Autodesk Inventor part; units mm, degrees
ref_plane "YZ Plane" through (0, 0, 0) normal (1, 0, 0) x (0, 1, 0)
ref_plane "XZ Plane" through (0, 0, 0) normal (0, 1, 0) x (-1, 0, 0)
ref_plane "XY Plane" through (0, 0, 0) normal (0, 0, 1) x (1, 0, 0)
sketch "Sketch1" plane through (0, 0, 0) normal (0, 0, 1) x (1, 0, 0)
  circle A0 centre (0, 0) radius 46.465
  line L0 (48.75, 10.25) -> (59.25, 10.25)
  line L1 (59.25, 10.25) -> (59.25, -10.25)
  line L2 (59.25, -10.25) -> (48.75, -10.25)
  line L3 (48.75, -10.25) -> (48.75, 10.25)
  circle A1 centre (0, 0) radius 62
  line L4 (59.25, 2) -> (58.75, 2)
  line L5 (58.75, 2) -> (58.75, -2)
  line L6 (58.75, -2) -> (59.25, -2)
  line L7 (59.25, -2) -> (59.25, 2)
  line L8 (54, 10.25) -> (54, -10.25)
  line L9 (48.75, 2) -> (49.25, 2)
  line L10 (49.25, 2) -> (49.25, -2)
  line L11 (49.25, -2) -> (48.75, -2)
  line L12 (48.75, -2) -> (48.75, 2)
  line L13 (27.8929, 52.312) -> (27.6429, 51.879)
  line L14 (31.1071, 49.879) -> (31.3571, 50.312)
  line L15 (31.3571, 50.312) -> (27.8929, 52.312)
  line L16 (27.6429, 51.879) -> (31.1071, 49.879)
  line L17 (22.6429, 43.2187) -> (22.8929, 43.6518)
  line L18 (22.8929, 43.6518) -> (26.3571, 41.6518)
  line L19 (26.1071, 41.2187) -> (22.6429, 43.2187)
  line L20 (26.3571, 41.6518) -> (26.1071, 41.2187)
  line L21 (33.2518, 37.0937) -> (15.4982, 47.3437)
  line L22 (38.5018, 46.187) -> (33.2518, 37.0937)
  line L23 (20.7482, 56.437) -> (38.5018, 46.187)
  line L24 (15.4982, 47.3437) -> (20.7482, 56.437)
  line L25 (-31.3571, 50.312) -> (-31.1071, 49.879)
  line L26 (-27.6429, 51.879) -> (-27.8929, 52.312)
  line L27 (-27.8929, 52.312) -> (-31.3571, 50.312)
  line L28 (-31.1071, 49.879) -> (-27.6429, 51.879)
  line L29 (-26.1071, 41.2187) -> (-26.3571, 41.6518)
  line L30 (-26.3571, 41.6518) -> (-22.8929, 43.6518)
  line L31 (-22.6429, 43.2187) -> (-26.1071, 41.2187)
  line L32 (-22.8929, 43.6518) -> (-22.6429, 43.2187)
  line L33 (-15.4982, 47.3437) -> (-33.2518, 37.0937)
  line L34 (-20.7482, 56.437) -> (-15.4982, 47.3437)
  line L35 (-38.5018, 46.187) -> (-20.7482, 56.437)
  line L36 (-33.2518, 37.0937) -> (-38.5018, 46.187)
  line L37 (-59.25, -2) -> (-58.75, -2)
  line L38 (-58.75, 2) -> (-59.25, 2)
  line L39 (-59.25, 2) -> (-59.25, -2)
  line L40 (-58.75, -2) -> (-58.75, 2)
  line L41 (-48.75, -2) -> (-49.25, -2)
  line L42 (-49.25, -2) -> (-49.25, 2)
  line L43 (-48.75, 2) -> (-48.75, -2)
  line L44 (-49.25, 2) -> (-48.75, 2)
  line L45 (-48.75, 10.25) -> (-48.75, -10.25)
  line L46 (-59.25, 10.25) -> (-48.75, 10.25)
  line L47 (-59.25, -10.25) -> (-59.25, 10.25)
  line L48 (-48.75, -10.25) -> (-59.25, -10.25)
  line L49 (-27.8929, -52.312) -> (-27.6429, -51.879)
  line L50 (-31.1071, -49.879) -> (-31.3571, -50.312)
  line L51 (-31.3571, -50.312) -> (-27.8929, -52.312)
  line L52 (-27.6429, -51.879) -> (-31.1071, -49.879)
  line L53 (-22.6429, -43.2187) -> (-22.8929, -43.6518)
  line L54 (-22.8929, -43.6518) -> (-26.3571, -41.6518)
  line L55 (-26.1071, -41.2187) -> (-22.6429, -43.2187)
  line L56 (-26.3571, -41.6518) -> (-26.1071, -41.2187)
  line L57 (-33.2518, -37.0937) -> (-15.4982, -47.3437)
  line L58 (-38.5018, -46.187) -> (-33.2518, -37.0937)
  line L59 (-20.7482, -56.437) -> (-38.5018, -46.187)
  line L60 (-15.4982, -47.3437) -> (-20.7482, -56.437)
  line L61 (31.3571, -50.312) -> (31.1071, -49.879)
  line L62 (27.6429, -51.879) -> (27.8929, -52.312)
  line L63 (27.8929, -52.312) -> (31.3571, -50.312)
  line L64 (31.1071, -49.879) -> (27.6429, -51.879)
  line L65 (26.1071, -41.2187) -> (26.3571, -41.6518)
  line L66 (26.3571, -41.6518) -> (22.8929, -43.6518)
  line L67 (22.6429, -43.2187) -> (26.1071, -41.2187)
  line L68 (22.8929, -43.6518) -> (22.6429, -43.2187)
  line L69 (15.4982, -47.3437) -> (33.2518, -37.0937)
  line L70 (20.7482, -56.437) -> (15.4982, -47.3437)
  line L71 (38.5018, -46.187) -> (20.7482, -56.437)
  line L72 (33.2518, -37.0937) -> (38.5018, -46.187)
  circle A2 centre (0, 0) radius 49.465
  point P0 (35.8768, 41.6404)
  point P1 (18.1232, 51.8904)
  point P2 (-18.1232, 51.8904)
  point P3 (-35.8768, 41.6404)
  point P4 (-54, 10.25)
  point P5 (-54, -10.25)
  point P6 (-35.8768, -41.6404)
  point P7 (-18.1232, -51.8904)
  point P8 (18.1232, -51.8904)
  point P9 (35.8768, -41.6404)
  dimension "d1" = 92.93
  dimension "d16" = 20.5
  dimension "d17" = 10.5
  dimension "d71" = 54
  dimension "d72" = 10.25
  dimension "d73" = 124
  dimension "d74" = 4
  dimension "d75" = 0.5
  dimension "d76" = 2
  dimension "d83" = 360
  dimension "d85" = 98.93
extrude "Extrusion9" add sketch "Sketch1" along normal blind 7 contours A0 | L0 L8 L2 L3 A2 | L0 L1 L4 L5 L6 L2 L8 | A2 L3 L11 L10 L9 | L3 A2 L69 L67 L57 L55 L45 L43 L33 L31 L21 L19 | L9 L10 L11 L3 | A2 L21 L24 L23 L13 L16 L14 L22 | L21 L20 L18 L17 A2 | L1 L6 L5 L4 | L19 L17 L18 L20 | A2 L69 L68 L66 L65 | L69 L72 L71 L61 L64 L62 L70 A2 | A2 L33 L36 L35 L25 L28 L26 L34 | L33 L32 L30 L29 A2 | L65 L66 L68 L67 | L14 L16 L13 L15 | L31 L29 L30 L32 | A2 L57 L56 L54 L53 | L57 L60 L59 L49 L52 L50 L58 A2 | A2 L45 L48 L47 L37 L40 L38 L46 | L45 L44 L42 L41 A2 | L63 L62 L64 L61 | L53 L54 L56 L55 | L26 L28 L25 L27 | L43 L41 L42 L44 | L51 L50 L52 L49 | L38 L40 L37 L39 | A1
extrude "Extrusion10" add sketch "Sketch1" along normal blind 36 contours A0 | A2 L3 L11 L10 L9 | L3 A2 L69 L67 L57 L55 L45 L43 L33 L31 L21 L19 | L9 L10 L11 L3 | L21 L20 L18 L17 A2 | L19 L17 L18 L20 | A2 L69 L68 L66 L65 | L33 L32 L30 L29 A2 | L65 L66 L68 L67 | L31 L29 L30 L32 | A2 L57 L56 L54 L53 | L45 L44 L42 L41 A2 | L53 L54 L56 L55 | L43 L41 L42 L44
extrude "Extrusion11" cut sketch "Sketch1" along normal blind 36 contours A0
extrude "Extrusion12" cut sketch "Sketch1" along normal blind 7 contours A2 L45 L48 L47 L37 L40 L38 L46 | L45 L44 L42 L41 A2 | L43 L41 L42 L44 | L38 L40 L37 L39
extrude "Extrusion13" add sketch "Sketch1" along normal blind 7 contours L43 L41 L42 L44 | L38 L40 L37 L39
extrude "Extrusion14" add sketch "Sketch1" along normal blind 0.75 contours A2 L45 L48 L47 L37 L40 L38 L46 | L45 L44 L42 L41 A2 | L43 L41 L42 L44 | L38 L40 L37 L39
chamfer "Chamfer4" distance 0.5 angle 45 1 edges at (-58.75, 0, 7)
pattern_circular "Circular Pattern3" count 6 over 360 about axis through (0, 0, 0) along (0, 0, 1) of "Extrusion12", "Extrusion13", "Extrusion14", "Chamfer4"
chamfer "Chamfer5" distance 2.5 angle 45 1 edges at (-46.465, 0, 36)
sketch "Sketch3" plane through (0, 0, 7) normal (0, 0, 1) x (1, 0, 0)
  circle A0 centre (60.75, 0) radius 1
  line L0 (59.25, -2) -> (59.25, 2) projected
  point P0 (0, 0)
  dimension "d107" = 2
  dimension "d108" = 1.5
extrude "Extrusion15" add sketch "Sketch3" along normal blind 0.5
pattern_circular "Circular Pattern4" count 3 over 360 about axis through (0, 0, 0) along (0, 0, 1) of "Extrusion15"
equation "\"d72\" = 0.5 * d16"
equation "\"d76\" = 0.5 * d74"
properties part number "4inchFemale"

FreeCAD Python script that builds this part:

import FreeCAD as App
import Part
import Sketcher

V = App.Vector


def edges_at(feature, points):
    """Names of the edges that pass closest to the given points."""
    edges = feature.Shape.Edges
    near = lambda p: min(range(len(edges)), key=lambda i: edges[i].distToShape(Part.Vertex(*p))[0])
    return sorted({f"Edge{near(p) + 1}" for p in points})

doc = App.newDocument("Part")
body = doc.addObject("PartDesign::Body", "Body")

# Sketch on XY plane
sketch1 = body.newObject("Sketcher::SketchObject", "Sketch")
sketch1.AttachmentSupport = (doc.getObject("XY_Plane"), [""])
sketch1.MapMode = "FlatFace"
sketch1.addGeometry(Part.Circle(V(0, 0, 0), V(0, 0, 1), 62), False)
sketch1.addConstraint(Sketcher.Constraint("Coincident", 0, 3, -1, 1))
sketch1.addConstraint(Sketcher.Constraint("Diameter", 0, 124.0))
pad1 = body.newObject("PartDesign::Pad", "Pad")
pad1.Profile = sketch1
pad1.Length = 7

# Sketch on XY plane
sketch2 = body.newObject("Sketcher::SketchObject", "Sketch001")
sketch2.AttachmentSupport = (doc.getObject("XY_Plane"), [""])
sketch2.MapMode = "FlatFace"
sketch2.addGeometry(Part.Circle(V(0, 0, 0), V(0, 0, 1), 49), False)
sketch2.addConstraint(Sketcher.Constraint("Coincident", 0, 3, -1, 1))
sketch2.addConstraint(Sketcher.Constraint("Diameter", 0, 98.93))
pad2 = body.newObject("PartDesign::Pad", "Pad001")
pad2.Profile = sketch2
pad2.Length = 36

# Sketch on XY plane
sketch3 = body.newObject("Sketcher::SketchObject", "Sketch002")
sketch3.AttachmentSupport = (doc.getObject("XY_Plane"), [""])
sketch3.MapMode = "FlatFace"
sketch3.addGeometry(Part.Circle(V(0, 0, 0), V(0, 0, 1), 46), False)
sketch3.addConstraint(Sketcher.Constraint("Coincident", 0, 3, -1, 1))
sketch3.addConstraint(Sketcher.Constraint("Diameter", 0, 92.93))
pocket1 = body.newObject("PartDesign::Pocket", "Pocket")
pocket1.Profile = sketch3
pocket1.Length = 36
pocket1.Reversed = True

# Sketch on XY plane
sketch4 = body.newObject("Sketcher::SketchObject", "Sketch003")
sketch4.AttachmentSupport = (doc.getObject("XY_Plane"), [""])
sketch4.MapMode = "FlatFace"
sketch4.addGeometry(Part.LineSegment(V(-49, -10, 0), V(-49, 10, 0)), False)
sketch4.addGeometry(Part.LineSegment(V(-49, 10, 0), V(-59, 10, 0)), False)
sketch4.addGeometry(Part.LineSegment(V(-59, 10, 0), V(-59, -10, 0)), False)
sketch4.addGeometry(Part.LineSegment(V(-59, -10, 0), V(-49, -10, 0)), False)
sketch4.addConstraint(Sketcher.Constraint("Coincident", 0, 2, 1, 1))
sketch4.addConstraint(Sketcher.Constraint("Coincident", 1, 2, 2, 1))
sketch4.addConstraint(Sketcher.Constraint("Coincident", 2, 2, 3, 1))
sketch4.addConstraint(Sketcher.Constraint("Coincident", 3, 2, 0, 1))
sketch4.addConstraint(Sketcher.Constraint("Vertical", 0))
sketch4.addConstraint(Sketcher.Constraint("Horizontal", 1))
sketch4.addConstraint(Sketcher.Constraint("Vertical", 2))
sketch4.addConstraint(Sketcher.Constraint("Horizontal", 3))
sketch4.addConstraint(Sketcher.Constraint("DistanceX", 1, 2, 1, 1, 10.5))
sketch4.addConstraint(Sketcher.Constraint("DistanceY", 0, 1, 0, 2, 20.5))
sketch4.addConstraint(Sketcher.Constraint("DistanceY", -1, 1, 0, 2, 10.25))
sketch4.addConstraint(Sketcher.Constraint("DistanceX", 0, 2, -1, 1, 48.75))
pocket2 = body.newObject("PartDesign::Pocket", "Pocket001")
pocket2.Profile = sketch4
pocket2.Length = 7
pocket2.Reversed = True

# Sketch on XY plane
sketch5 = body.newObject("Sketcher::SketchObject", "Sketch004")
sketch5.AttachmentSupport = (doc.getObject("XY_Plane"), [""])
sketch5.MapMode = "FlatFace"
sketch5.addGeometry(Part.LineSegment(V(-48.8, -2, 0), V(-48.8, 2, 0)), False)
sketch5.addGeometry(Part.LineSegment(V(-48.8, 2, 0), V(-49.2, 2, 0)), False)
sketch5.addGeometry(Part.LineSegment(V(-49.2, 2, 0), V(-49.2, -2, 0)), False)
sketch5.addGeometry(Part.LineSegment(V(-49.2, -2, 0), V(-48.8, -2, 0)), False)
sketch5.addGeometry(Part.LineSegment(V(-58.8, 2, 0), V(-59.2, 2, 0)), False)
sketch5.addGeometry(Part.LineSegment(V(-59.2, 2, 0), V(-59.2, -2, 0)), False)
sketch5.addGeometry(Part.LineSegment(V(-59.2, -2, 0), V(-58.8, -2, 0)), False)
sketch5.addGeometry(Part.LineSegment(V(-58.8, -2, 0), V(-58.8, 2, 0)), False)
sketch5.addConstraint(Sketcher.Constraint("Coincident", 0, 2, 1, 1))
sketch5.addConstraint(Sketcher.Constraint("Coincident", 1, 2, 2, 1))
sketch5.addConstraint(Sketcher.Constraint("Coincident", 2, 2, 3, 1))
sketch5.addConstraint(Sketcher.Constraint("Coincident", 3, 2, 0, 1))
sketch5.addConstraint(Sketcher.Constraint("Coincident", 4, 2, 5, 1))
sketch5.addConstraint(Sketcher.Constraint("Coincident", 5, 2, 6, 1))
sketch5.addConstraint(Sketcher.Constraint("Coincident", 6, 2, 7, 1))
sketch5.addConstraint(Sketcher.Constraint("Coincident", 7, 2, 4, 1))
sketch5.addConstraint(Sketcher.Constraint("Vertical", 0))
sketch5.addConstraint(Sketcher.Constraint("Horizontal", 1))
sketch5.addConstraint(Sketcher.Constraint("Vertical", 2))
sketch5.addConstraint(Sketcher.Constraint("Horizontal", 3))
sketch5.addConstraint(Sketcher.Constraint("Horizontal", 4))
sketch5.addConstraint(Sketcher.Constraint("Vertical", 5))
sketch5.addConstraint(Sketcher.Constraint("Horizontal", 6))
sketch5.addConstraint(Sketcher.Constraint("Vertical", 7))
sketch5.addConstraint(Sketcher.Constraint("Horizontal", 1, 2, 4, 2))
sketch5.addConstraint(Sketcher.Constraint("Horizontal", 3, 2, 5, 2))
sketch5.addConstraint(Sketcher.Constraint("Equal", 3, 4))
sketch5.addConstraint(Sketcher.Constraint("DistanceY", 0, 1, 0, 2, 4.0))
sketch5.addConstraint(Sketcher.Constraint("DistanceX", 1, 2, 1, 1, 0.5))
sketch5.addConstraint(Sketcher.Constraint("DistanceY", -1, 1, 0, 2, 2.0))
sketch5.addConstraint(Sketcher.Constraint("DistanceX", 4, 2, 0, 2, 10.5))
sketch5.addConstraint(Sketcher.Constraint("DistanceX", 0, 2, -1, 1, 48.75))
pad3 = body.newObject("PartDesign::Pad", "Pad002")
pad3.Profile = sketch5
pad3.Length = 7

# Sketch on XY plane
sketch6 = body.newObject("Sketcher::SketchObject", "Sketch005")
sketch6.AttachmentSupport = (doc.getObject("XY_Plane"), [""])
sketch6.MapMode = "FlatFace"
sketch6.addGeometry(Part.LineSegment(V(-49, -10, 0), V(-49, 10, 0)), False)
sketch6.addGeometry(Part.LineSegment(V(-49, 10, 0), V(-59, 10, 0)), False)
sketch6.addGeometry(Part.LineSegment(V(-59, 10, 0), V(-59, -10, 0)), False)
sketch6.addGeometry(Part.LineSegment(V(-59, -10, 0), V(-49, -10, 0)), False)
sketch6.addConstraint(Sketcher.Constraint("Coincident", 0, 2, 1, 1))
sketch6.addConstraint(Sketcher.Constraint("Coincident", 1, 2, 2, 1))
sketch6.addConstraint(Sketcher.Constraint("Coincident", 2, 2, 3, 1))
sketch6.addConstraint(Sketcher.Constraint("Coincident", 3, 2, 0, 1))
sketch6.addConstraint(Sketcher.Constraint("Vertical", 0))
sketch6.addConstraint(Sketcher.Constraint("Horizontal", 1))
sketch6.addConstraint(Sketcher.Constraint("Vertical", 2))
sketch6.addConstraint(Sketcher.Constraint("Horizontal", 3))
sketch6.addConstraint(Sketcher.Constraint("DistanceX", 1, 2, 1, 1, 10.5))
sketch6.addConstraint(Sketcher.Constraint("DistanceY", 0, 1, 0, 2, 20.5))
sketch6.addConstraint(Sketcher.Constraint("DistanceY", -1, 1, 0, 2, 10.25))
sketch6.addConstraint(Sketcher.Constraint("DistanceX", 0, 2, -1, 1, 48.75))
pad4 = body.newObject("PartDesign::Pad", "Pad003")
pad4.Profile = sketch6
pad4.Length = 0.75
doc.recompute()

chamfer = body.newObject("PartDesign::Chamfer", "Chamfer")
chamfer.Base = (pad4, edges_at(pad4, [(-58.75, 0, 7)]))
chamfer.Size = 0.5
doc.recompute()

polarpattern = body.newObject("PartDesign::PolarPattern", "PolarPattern")
polarpattern.Originals = [pocket2, pad3, pad4, chamfer]
polarpattern.Axis = (doc.getObject("Z_Axis"), [""])
polarpattern.Angle = 360
polarpattern.Occurrences = 6
body.Tip = polarpattern
doc.recompute()

chamfer2 = body.newObject("PartDesign::Chamfer", "Chamfer001")
chamfer2.Base = (polarpattern, edges_at(polarpattern, [(-46.465, 0, 36)]))
chamfer2.Size = 2.5

# Sketch on XY plane
sketch7 = body.newObject("Sketcher::SketchObject", "Sketch006")
sketch7.AttachmentSupport = (doc.getObject("XY_Plane"), [""])
sketch7.MapMode = "FlatFace"
sketch7.AttachmentOffset = App.Placement(V(0, 0, 7), App.Rotation())
sketch7.addGeometry(Part.Circle(V(60.8, 0, 0), V(0, 0, 1), 1), False)
sketch7.addConstraint(Sketcher.Constraint("PointOnObject", 0, 3, -1))
sketch7.addConstraint(Sketcher.Constraint("Diameter", 0, 2.0))
sketch7.addConstraint(Sketcher.Constraint("DistanceX", -1, 1, 0, 3, 60.75))
pad5 = body.newObject("PartDesign::Pad", "Pad004")
pad5.Profile = sketch7
pad5.Length = 0.5
doc.recompute()

polarpattern2 = body.newObject("PartDesign::PolarPattern", "PolarPattern001")
polarpattern2.Originals = [pad5]
polarpattern2.Axis = (doc.getObject("Z_Axis"), [""])
polarpattern2.Angle = 360
polarpattern2.Occurrences = 3
body.Tip = polarpattern2

doc.recompute()
